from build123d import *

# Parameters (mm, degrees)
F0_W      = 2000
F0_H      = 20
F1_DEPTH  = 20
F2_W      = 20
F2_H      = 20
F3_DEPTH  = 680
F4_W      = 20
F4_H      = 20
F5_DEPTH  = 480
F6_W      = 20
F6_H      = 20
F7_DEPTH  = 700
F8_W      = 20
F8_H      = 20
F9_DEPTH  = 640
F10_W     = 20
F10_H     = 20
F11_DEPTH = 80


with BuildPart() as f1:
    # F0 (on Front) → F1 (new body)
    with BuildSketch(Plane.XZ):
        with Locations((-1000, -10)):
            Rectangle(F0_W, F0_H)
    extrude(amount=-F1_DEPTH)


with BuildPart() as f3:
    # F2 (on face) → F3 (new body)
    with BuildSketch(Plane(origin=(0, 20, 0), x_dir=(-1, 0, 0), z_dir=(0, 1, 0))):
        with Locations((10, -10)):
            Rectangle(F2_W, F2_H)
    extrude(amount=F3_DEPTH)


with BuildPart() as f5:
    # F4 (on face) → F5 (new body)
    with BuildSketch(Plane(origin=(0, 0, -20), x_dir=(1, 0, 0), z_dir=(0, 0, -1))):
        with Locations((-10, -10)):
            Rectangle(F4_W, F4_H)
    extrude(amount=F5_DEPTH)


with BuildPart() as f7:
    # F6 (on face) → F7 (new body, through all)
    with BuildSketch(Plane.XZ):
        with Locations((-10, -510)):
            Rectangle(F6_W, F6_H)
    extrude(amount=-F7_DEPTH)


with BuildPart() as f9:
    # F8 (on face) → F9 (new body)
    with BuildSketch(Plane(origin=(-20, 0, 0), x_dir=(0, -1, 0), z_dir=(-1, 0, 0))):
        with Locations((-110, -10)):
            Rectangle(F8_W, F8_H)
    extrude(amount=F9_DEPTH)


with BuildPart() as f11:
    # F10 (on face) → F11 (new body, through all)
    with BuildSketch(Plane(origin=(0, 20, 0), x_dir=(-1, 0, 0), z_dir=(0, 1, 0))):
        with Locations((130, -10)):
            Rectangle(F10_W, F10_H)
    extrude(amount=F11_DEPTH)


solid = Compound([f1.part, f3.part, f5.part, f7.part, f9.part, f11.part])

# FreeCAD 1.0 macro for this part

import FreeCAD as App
import Part
import Sketcher
Q = App.Units.Quantity

doc = App.newDocument("Part")
params = doc.addObject("Spreadsheet::Sheet", "Params")
for row, (alias, value) in enumerate([
    ("sketch1_width", "2000 mm"),
    ("sketch1_height", "20 mm"),
    ("pad1_length", "20 mm"),
    ("sketch2_width", "20 mm"),
    ("pad2_length", "680 mm"),
    ("sketch3_width", "20 mm"),
    ("pad3_length", "480 mm"),
    ("sketch4_width", "20 mm"),
    ("pad4_length", "700 mm"),
    ("sketch5_width", "20 mm"),
    ("pad5_length", "640 mm"),
    ("sketch6_width", "20 mm"),
    ("pad6_length", "80 mm"),
], start=1):
    params.set(f"A{row}", alias)
    params.set(f"B{row}", "=" + value)
    params.setAlias(f"B{row}", alias)

body = doc.addObject("PartDesign::Body", "Body")

sketch1 = doc.addObject("Sketcher::SketchObject", "Sketch")
body.addObject(sketch1)
sketch1.AttachmentSupport = (doc.XZ_Plane, [""])
sketch1.MapMode = "FlatFace"
sketch1.addGeometry(Part.LineSegment(App.Vector(-2000, 0, 0), App.Vector(-2000, -20, 0)), False)
sketch1.addGeometry(Part.LineSegment(App.Vector(-2000, -20, 0), App.Vector(0, -20, 0)), False)
sketch1.addGeometry(Part.LineSegment(App.Vector(0, -20, 0), App.Vector(0, 0, 0)), False)
sketch1.addGeometry(Part.LineSegment(App.Vector(0, 0, 0), App.Vector(-2000, 0, 0)), False)
sketch1.addConstraint(Sketcher.Constraint("Coincident", 0, 2, 1, 1))
sketch1.addConstraint(Sketcher.Constraint("Coincident", 1, 2, 2, 1))
sketch1.addConstraint(Sketcher.Constraint("Coincident", 2, 2, 3, 1))
sketch1.addConstraint(Sketcher.Constraint("Coincident", 3, 2, 0, 1))
sketch1.addConstraint(Sketcher.Constraint("Vertical", 0))
sketch1.addConstraint(Sketcher.Constraint("Horizontal", 1))
sketch1.addConstraint(Sketcher.Constraint("Vertical", 2))
sketch1.addConstraint(Sketcher.Constraint("Horizontal", 3))
sketch1.addConstraint(Sketcher.Constraint("Coincident", 2, 2, -1, 1))
sketch1.addConstraint(Sketcher.Constraint("DistanceX", 1, 1, 1, 2, Q("2000 mm")))
sketch1.addConstraint(Sketcher.Constraint("DistanceY", 0, 2, 0, 1, Q("20 mm")))
sketch1.setExpression("Constraints[9]", "Params.sketch1_width")
sketch1.setExpression("Constraints[10]", "Params.sketch1_height")
pad1 = doc.addObject("PartDesign::Pad", "Pad")
body.addObject(pad1)
pad1.Profile = sketch1
pad1.setExpression("Length", "Params.pad1_length")
pad1.Reversed = True
body2 = doc.addObject("PartDesign::Body", "Body001")

sketch2 = doc.addObject("Sketcher::SketchObject", "Sketch001")
body2.addObject(sketch2)
sketch2.AttachmentSupport = (doc.getObject("XZ_Plane001"), [""])
sketch2.MapMode = "FlatFace"
sketch2.AttachmentOffset = App.Placement(App.Vector(0, 0, -20), App.Rotation())
sketch2.addGeometry(Part.LineSegment(App.Vector(0, 0, 0), App.Vector(0, -20, 0)), False)
sketch2.addGeometry(Part.LineSegment(App.Vector(0, -20, 0), App.Vector(-20, -20, 0)), False)
sketch2.addGeometry(Part.LineSegment(App.Vector(-20, -20, 0), App.Vector(-20, 0, 0)), False)
sketch2.addGeometry(Part.LineSegment(App.Vector(-20, 0, 0), App.Vector(0, 0, 0)), False)
sketch2.addConstraint(Sketcher.Constraint("Coincident", 0, 2, 1, 1))
sketch2.addConstraint(Sketcher.Constraint("Coincident", 1, 2, 2, 1))
sketch2.addConstraint(Sketcher.Constraint("Coincident", 2, 2, 3, 1))
sketch2.addConstraint(Sketcher.Constraint("Coincident", 3, 2, 0, 1))
sketch2.addConstraint(Sketcher.Constraint("Vertical", 0))
sketch2.addConstraint(Sketcher.Constraint("Horizontal", 1))
sketch2.addConstraint(Sketcher.Constraint("Vertical", 2))
sketch2.addConstraint(Sketcher.Constraint("Horizontal", 3))
sketch2.addConstraint(Sketcher.Constraint("Coincident", 3, 2, -1, 1))
sketch2.addConstraint(Sketcher.Constraint("Equal", 3, 0))
sketch2.addConstraint(Sketcher.Constraint("DistanceX", 1, 2, 1, 1, Q("20 mm")))
sketch2.setExpression("Constraints[10]", "Params.sketch2_width")
pad2 = doc.addObject("PartDesign::Pad", "Pad001")
body2.addObject(pad2)
pad2.Profile = sketch2
pad2.setExpression("Length", "Params.pad2_length")
pad2.Reversed = True
body3 = doc.addObject("PartDesign::Body", "Body002")

sketch3 = doc.addObject("Sketcher::SketchObject", "Sketch002")
body3.addObject(sketch3)
sketch3.AttachmentSupport = (doc.getObject("XY_Plane002"), [""])
sketch3.MapMode = "FlatFace"
sketch3.AttachmentOffset = App.Placement(App.Vector(0, 0, -20), App.Rotation())
sketch3.addGeometry(Part.LineSegment(App.Vector(-20, 0, 0), App.Vector(-20, 20, 0)), False)
sketch3.addGeometry(Part.LineSegment(App.Vector(-20, 20, 0), App.Vector(0, 20, 0)), False)
sketch3.addGeometry(Part.LineSegment(App.Vector(0, 20, 0), App.Vector(0, 0, 0)), False)
sketch3.addGeometry(Part.LineSegment(App.Vector(0, 0, 0), App.Vector(-20, 0, 0)), False)
sketch3.addConstraint(Sketcher.Constraint("Coincident", 0, 2, 1, 1))
sketch3.addConstraint(Sketcher.Constraint("Coincident", 1, 2, 2, 1))
sketch3.addConstraint(Sketcher.Constraint("Coincident", 2, 2, 3, 1))
sketch3.addConstraint(Sketcher.Constraint("Coincident", 3, 2, 0, 1))
sketch3.addConstraint(Sketcher.Constraint("Vertical", 0))
sketch3.addConstraint(Sketcher.Constraint("Horizontal", 1))
sketch3.addConstraint(Sketcher.Constraint("Vertical", 2))
sketch3.addConstraint(Sketcher.Constraint("Horizontal", 3))
sketch3.addConstraint(Sketcher.Constraint("Coincident", 2, 2, -1, 1))
sketch3.addConstraint(Sketcher.Constraint("Equal", 3, 0))
sketch3.addConstraint(Sketcher.Constraint("DistanceX", 1, 1, 1, 2, Q("20 mm")))
sketch3.setExpression("Constraints[10]", "Params.sketch3_width")
pad3 = doc.addObject("PartDesign::Pad", "Pad002")
body3.addObject(pad3)
pad3.Profile = sketch3
pad3.setExpression("Length", "Params.pad3_length")
pad3.Reversed = True
body4 = doc.addObject("PartDesign::Body", "Body003")

sketch4 = doc.addObject("Sketcher::SketchObject", "Sketch003")
body4.addObject(sketch4)
sketch4.AttachmentSupport = (doc.getObject("XZ_Plane003"), [""])
sketch4.MapMode = "FlatFace"
sketch4.addGeometry(Part.LineSegment(App.Vector(-20, -500, 0), App.Vector(-20, -520, 0)), False)
sketch4.addGeometry(Part.LineSegment(App.Vector(-20, -520, 0), App.Vector(0, -520, 0)), False)
sketch4.addGeometry(Part.LineSegment(App.Vector(0, -520, 0), App.Vector(0, -500, 0)), False)
sketch4.addGeometry(Part.LineSegment(App.Vector(0, -500, 0), App.Vector(-20, -500, 0)), False)
sketch4.addConstraint(Sketcher.Constraint("Coincident", 0, 2, 1, 1))
sketch4.addConstraint(Sketcher.Constraint("Coincident", 1, 2, 2, 1))
sketch4.addConstraint(Sketcher.Constraint("Coincident", 2, 2, 3, 1))
sketch4.addConstraint(Sketcher.Constraint("Coincident", 3, 2, 0, 1))
sketch4.addConstraint(Sketcher.Constraint("Vertical", 0))
sketch4.addConstraint(Sketcher.Constraint("Horizontal", 1))
sketch4.addConstraint(Sketcher.Constraint("Vertical", 2))
sketch4.addConstraint(Sketcher.Constraint("Horizontal", 3))
sketch4.addConstraint(Sketcher.Constraint("PointOnObject", 1, 2, -2))
sketch4.addConstraint(Sketcher.Constraint("Equal", 3, 0))
sketch4.addConstraint(Sketcher.Constraint("DistanceX", 1, 1, 1, 2, Q("20 mm")))
sketch4.addConstraint(Sketcher.Constraint("DistanceY", 0, 2, -1, 1, Q("520 mm")))
sketch4.setExpression("Constraints[10]", "Params.sketch4_width")
pad4 = doc.addObject("PartDesign::Pad", "Pad003")
body4.addObject(pad4)
pad4.Profile = sketch4
pad4.setExpression("Length", "Params.pad4_length")
pad4.Reversed = True
body5 = doc.addObject("PartDesign::Body", "Body004")

sketch5 = doc.addObject("Sketcher::SketchObject", "Sketch004")
body5.addObject(sketch5)
sketch5.AttachmentSupport = (doc.getObject("YZ_Plane004"), [""])
sketch5.MapMode = "FlatFace"
sketch5.AttachmentOffset = App.Placement(App.Vector(0, 0, -20), App.Rotation())
sketch5.addGeometry(Part.LineSegment(App.Vector(120, 0, 0), App.Vector(120, -20, 0)), False)
sketch5.addGeometry(Part.LineSegment(App.Vector(120, -20, 0), App.Vector(100, -20, 0)), False)
sketch5.addGeometry(Part.LineSegment(App.Vector(100, -20, 0), App.Vector(100, 0, 0)), False)
sketch5.addGeometry(Part.LineSegment(App.Vector(100, 0, 0), App.Vector(120, 0, 0)), False)
sketch5.addConstraint(Sketcher.Constraint("Coincident", 0, 2, 1, 1))
sketch5.addConstraint(Sketcher.Constraint("Coincident", 1, 2, 2, 1))
sketch5.addConstraint(Sketcher.Constraint("Coincident", 2, 2, 3, 1))
sketch5.addConstraint(Sketcher.Constraint("Coincident", 3, 2, 0, 1))
sketch5.addConstraint(Sketcher.Constraint("Vertical", 0))
sketch5.addConstraint(Sketcher.Constraint("Horizontal", 1))
sketch5.addConstraint(Sketcher.Constraint("Vertical", 2))
sketch5.addConstraint(Sketcher.Constraint("Horizontal", 3))
sketch5.addConstraint(Sketcher.Constraint("PointOnObject", 2, 2, -1))
sketch5.addConstraint(Sketcher.Constraint("Equal", 3, 0))
sketch5.addConstraint(Sketcher.Constraint("DistanceX", 1, 2, 1, 1, Q("20 mm")))
sketch5.addConstraint(Sketcher.Constraint("DistanceX", -1, 1, 0, 2, Q("120 mm")))
sketch5.setExpression("Constraints[10]", "Params.sketch5_width")
pad5 = doc.addObject("PartDesign::Pad", "Pad004")
body5.addObject(pad5)
pad5.Profile = sketch5
pad5.setExpression("Length", "Params.pad5_length")
pad5.Reversed = True
body6 = doc.addObject("PartDesign::Body", "Body005")

sketch6 = doc.addObject("Sketcher::SketchObject", "Sketch005")
body6.addObject(sketch6)
sketch6.AttachmentSupport = (doc.getObject("XZ_Plane005"), [""])
sketch6.MapMode = "FlatFace"
sketch6.AttachmentOffset = App.Placement(App.Vector(0, 0, -20), App.Rotation())
sketch6.addGeometry(Part.LineSegment(App.Vector(-120, 0, 0), App.Vector(-120, -20, 0)), False)
sketch6.addGeometry(Part.LineSegment(App.Vector(-120, -20, 0), App.Vector(-140, -20, 0)), False)
sketch6.addGeometry(Part.LineSegment(App.Vector(-140, -20, 0), App.Vector(-140, 0, 0)), False)
sketch6.addGeometry(Part.LineSegment(App.Vector(-140, 0, 0), App.Vector(-120, 0, 0)), False)
sketch6.addConstraint(Sketcher.Constraint("Coincident", 0, 2, 1, 1))
sketch6.addConstraint(Sketcher.Constraint("Coincident", 1, 2, 2, 1))
sketch6.addConstraint(Sketcher.Constraint("Coincident", 2, 2, 3, 1))
sketch6.addConstraint(Sketcher.Constraint("Coincident", 3, 2, 0, 1))
sketch6.addConstraint(Sketcher.Constraint("Vertical", 0))
sketch6.addConstraint(Sketcher.Constraint("Horizontal", 1))
sketch6.addConstraint(Sketcher.Constraint("Vertical", 2))
sketch6.addConstraint(Sketcher.Constraint("Horizontal", 3))
sketch6.addConstraint(Sketcher.Constraint("PointOnObject", 2, 2, -1))
sketch6.addConstraint(Sketcher.Constraint("Equal", 3, 0))
sketch6.addConstraint(Sketcher.Constraint("DistanceX", 1, 2, 1, 1, Q("20 mm")))
sketch6.addConstraint(Sketcher.Constraint("DistanceX", 0, 2, -1, 1, Q("120 mm")))
sketch6.setExpression("Constraints[10]", "Params.sketch6_width")
pad6 = doc.addObject("PartDesign::Pad", "Pad005")
body6.addObject(pad6)
pad6.Profile = sketch6
pad6.setExpression("Length", "Params.pad6_length")
pad6.Reversed = True

doc.recompute()
